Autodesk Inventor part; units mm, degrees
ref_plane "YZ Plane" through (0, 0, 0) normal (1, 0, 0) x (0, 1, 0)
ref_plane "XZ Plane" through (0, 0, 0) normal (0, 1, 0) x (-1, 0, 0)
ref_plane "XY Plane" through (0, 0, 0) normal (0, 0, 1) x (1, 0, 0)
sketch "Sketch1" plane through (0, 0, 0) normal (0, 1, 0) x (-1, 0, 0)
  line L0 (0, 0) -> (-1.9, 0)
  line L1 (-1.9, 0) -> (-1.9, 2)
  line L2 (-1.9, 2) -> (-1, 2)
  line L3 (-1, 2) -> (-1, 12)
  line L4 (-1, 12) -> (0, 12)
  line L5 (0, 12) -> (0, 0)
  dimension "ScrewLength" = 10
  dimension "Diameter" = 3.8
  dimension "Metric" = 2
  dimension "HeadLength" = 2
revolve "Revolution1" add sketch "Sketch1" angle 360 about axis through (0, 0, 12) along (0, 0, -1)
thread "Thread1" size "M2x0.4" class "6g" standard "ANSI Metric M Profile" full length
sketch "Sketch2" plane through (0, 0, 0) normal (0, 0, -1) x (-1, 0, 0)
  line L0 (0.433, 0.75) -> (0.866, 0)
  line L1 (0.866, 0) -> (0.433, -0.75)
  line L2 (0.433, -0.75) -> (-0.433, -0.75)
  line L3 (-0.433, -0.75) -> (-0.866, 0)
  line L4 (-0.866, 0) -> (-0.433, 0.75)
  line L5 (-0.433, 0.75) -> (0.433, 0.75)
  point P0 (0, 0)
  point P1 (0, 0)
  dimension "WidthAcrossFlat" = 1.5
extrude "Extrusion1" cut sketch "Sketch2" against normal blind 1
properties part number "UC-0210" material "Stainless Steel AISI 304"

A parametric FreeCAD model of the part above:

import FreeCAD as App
import Part
import Sketcher
from FreeCAD import Vector
Q = App.Units.Quantity


def add_polygon(sketch, points):
    """Adds a closed chain of lines whose ends are joined by coincident constraints."""
    first, n = sketch.GeometryCount, len(points)
    for a, b in zip(points, points[1:] + points[:1]):
        sketch.addGeometry(Part.LineSegment(App.Vector(*a, 0), App.Vector(*b, 0)), False)
    for i in range(n):
        sketch.addConstraint(Sketcher.Constraint("Coincident", first + i, 2, first + (i + 1) % n, 1))

doc = App.newDocument("Part")
params = doc.addObject("Spreadsheet::Sheet", "Params")
for row, (alias, value) in enumerate([
    ("sketch1_height", "10 mm"),
    ("sketch1_height2", "2 mm"),
    ("sketch1_width", "1 mm"),
    ("sketch1_width2", "1.9 mm"),
    ("revolution_angle", "360 deg"),
    ("pocket1_length", "1 mm"),
], start=1):
    params.set(f"A{row}", alias)
    params.set(f"B{row}", "=" + value)
    params.setAlias(f"B{row}", alias)

body = doc.addObject("PartDesign::Body", "Body")

# Sketch on XZ plane
sketch1 = body.newObject("Sketcher::SketchObject", "Sketch")
sketch1.AttachmentSupport = (doc.getObject("XZ_Plane"), [""])
sketch1.MapMode = "FlatFace"
add_polygon(sketch1, [(1.9, 0), (0, 0), (0, 12), (1, 12), (1, 2), (1.9, 2)])  # lines 0-5
sketch1.addConstraint(Sketcher.Constraint("Horizontal", 0))
sketch1.addConstraint(Sketcher.Constraint("Vertical", 1))
sketch1.addConstraint(Sketcher.Constraint("Horizontal", 2))
sketch1.addConstraint(Sketcher.Constraint("Vertical", 3))
sketch1.addConstraint(Sketcher.Constraint("Horizontal", 4))
sketch1.addConstraint(Sketcher.Constraint("Vertical", 5))
sketch1.addConstraint(Sketcher.Constraint("Coincident", 0, 2, -1, 1))
sketch1.addConstraint(Sketcher.Constraint("DistanceY", 3, 2, 3, 1, 10.0))
sketch1.addConstraint(Sketcher.Constraint("DistanceY", 5, 2, 5, 1, 2.0))
sketch1.addConstraint(Sketcher.Constraint("DistanceX", 2, 1, 2, 2, 1.0))
sketch1.addConstraint(Sketcher.Constraint("DistanceX", 0, 2, 0, 1, 1.9))
sketch1.setExpression("Constraints[13]", "Params.sketch1_height")
sketch1.setExpression("Constraints[14]", "Params.sketch1_height2")
sketch1.setExpression("Constraints[15]", "Params.sketch1_width")
sketch1.setExpression("Constraints[16]", "Params.sketch1_width2")
revolution = body.newObject("PartDesign::Revolution", "Revolution")
revolution.Profile = sketch1
revolution.ReferenceAxis = (sketch1, ["V_Axis"])
revolution.setExpression("Angle", "Params.revolution_angle")

# Sketch on XY plane
sketch2 = body.newObject("Sketcher::SketchObject", "Sketch001")
sketch2.AttachmentSupport = (doc.getObject("XY_Plane"), [""])
sketch2.MapMode = "FlatFace"
add_polygon(sketch2, [(-0.9, 0), (-0.4, 0.8), (0.4, 0.8), (0.9, 0), (0.4, -0.8), (-0.4, -0.8)])  # lines 0-5
sketch2.addConstraint(Sketcher.Constraint("Horizontal", 1))
sketch2.addConstraint(Sketcher.Constraint("Horizontal", 4))
sketch2.addConstraint(Sketcher.Constraint("Symmetric", 0, 2, 3, 2, -1, 1))
sketch2.addConstraint(Sketcher.Constraint("Symmetric", 2, 2, 5, 2, -1, 1))
sketch2.addConstraint(Sketcher.Constraint("PointOnObject", 2, 2, -1))
sketch2.addConstraint(Sketcher.Constraint("Parallel", 2, 5))
sketch2.addConstraint(Sketcher.Constraint("Vertical", 1, 2, 3, 2))
sketch2.addConstraint(Sketcher.Constraint("DistanceY", 3, 2, 1, 2, 1.5))
sketch2.addConstraint(Sketcher.Constraint("Angle", 0, Q("60.0007 deg")))
sketch2.addConstraint(Sketcher.Constraint("DistanceX", 1, 1, 1, 2, 0.866))
pocket1 = body.newObject("PartDesign::Pocket", "Pocket")
pocket1.Profile = sketch2
pocket1.setExpression("Length", "Params.pocket1_length")
pocket1.Reversed = True

doc.recompute()
